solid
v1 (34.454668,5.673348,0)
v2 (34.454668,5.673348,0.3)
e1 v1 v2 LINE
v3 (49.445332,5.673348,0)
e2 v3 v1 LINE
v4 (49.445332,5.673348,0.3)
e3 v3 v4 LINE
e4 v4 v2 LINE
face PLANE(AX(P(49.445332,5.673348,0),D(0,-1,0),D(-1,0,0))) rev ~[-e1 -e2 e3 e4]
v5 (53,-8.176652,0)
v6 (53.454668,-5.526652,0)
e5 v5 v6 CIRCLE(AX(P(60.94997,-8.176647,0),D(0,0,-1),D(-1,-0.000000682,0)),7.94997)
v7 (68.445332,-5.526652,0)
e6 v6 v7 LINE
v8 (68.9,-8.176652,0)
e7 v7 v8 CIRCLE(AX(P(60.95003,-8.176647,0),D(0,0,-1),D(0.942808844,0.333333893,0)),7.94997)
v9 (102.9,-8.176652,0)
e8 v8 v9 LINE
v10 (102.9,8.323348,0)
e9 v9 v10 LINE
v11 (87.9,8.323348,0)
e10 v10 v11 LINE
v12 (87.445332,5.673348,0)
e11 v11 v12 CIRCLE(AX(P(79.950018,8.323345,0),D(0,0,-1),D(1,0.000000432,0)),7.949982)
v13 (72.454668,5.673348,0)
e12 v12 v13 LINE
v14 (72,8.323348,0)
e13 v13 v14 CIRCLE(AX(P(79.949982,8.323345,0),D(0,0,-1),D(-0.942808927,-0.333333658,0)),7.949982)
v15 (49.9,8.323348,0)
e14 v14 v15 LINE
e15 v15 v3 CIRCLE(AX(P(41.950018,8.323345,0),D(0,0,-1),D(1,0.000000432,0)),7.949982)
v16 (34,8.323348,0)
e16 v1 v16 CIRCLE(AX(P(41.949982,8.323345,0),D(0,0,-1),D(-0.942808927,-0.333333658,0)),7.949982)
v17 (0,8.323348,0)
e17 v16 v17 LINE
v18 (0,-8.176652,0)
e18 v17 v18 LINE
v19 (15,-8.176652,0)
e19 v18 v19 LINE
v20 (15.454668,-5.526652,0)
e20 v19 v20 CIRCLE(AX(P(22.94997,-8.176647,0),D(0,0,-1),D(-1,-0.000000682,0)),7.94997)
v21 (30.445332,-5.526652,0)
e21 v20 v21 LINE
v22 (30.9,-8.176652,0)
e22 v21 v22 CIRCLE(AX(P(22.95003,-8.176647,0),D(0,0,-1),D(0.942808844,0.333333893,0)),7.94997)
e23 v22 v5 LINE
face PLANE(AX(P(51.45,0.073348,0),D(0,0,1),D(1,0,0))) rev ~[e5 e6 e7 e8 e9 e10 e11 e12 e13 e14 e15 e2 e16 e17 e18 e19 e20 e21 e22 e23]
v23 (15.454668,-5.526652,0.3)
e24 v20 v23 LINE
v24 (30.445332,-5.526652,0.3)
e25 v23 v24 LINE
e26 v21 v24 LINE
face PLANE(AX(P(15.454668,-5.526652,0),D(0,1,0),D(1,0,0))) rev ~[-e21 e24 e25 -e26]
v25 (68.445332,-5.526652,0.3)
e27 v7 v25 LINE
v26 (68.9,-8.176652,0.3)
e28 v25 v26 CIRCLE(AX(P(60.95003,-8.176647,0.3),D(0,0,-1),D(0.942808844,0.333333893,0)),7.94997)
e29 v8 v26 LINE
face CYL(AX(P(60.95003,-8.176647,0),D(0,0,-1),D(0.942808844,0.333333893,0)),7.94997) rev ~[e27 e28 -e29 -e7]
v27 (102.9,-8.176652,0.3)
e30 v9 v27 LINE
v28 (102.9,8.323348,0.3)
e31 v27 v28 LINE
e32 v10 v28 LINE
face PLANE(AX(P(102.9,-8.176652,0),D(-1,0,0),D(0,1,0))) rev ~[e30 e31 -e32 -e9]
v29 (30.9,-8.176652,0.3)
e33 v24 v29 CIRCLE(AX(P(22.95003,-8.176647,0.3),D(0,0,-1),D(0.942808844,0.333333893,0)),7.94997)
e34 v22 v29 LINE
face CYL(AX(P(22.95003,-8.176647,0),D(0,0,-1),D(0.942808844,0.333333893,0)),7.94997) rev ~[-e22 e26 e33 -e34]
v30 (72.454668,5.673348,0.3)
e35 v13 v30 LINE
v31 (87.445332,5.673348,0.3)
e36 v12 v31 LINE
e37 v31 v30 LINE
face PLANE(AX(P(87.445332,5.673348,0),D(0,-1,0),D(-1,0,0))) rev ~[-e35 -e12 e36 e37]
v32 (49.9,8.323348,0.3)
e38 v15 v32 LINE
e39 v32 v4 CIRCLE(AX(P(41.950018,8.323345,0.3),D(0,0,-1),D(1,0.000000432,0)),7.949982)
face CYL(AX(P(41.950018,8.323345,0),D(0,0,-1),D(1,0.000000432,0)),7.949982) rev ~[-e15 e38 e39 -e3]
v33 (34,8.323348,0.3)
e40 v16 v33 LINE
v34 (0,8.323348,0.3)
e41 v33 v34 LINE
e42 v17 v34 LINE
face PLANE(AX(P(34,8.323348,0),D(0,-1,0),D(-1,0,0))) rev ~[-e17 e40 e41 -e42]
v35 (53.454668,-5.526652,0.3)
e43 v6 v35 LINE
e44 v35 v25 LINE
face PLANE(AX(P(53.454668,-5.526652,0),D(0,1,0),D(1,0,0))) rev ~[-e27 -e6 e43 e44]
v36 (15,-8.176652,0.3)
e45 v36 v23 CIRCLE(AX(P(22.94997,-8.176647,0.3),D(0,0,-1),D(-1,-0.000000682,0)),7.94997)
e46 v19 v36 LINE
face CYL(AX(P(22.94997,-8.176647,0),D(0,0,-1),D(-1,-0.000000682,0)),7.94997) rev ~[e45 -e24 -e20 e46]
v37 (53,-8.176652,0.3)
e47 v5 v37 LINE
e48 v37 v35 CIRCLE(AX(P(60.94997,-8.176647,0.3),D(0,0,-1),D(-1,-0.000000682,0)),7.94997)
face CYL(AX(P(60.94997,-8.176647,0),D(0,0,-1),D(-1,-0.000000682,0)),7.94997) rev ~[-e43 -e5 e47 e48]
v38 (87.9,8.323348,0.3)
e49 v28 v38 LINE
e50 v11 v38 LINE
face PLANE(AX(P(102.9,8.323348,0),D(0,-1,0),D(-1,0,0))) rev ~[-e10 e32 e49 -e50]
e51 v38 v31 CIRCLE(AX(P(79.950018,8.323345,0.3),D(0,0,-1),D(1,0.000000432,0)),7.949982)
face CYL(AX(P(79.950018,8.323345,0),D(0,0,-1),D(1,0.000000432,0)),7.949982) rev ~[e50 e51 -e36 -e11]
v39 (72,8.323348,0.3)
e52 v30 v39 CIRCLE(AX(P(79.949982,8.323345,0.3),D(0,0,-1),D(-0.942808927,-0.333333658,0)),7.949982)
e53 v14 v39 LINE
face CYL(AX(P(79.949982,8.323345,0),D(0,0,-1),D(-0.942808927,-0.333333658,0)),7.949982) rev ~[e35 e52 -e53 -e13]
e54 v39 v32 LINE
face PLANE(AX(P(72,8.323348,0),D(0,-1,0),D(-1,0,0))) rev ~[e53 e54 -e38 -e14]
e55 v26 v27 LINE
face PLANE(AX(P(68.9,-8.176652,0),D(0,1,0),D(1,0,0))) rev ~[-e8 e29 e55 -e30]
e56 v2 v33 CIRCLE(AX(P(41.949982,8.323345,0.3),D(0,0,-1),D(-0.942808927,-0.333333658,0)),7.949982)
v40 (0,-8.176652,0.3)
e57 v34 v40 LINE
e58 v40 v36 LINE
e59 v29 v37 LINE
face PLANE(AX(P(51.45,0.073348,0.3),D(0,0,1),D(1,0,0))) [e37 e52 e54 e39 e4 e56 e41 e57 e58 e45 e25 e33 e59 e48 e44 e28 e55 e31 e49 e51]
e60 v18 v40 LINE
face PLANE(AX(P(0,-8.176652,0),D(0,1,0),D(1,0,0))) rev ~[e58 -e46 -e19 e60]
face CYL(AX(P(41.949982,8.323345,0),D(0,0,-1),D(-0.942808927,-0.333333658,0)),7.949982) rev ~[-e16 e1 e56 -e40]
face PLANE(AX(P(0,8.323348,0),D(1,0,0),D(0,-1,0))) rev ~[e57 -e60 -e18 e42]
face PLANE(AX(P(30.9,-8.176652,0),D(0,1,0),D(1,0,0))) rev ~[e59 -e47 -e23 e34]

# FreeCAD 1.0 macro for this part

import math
import FreeCAD as App
import Part
import Sketcher
from FreeCAD import Vector
Q = App.Units.Quantity

doc = App.newDocument("Part")
body = doc.addObject("PartDesign::Body", "Body")

# Sketch on XY plane
sketch1 = doc.addObject("Sketcher::SketchObject", "Sketch")
body.addObject(sketch1)
sketch1.AttachmentSupport = (doc.XY_Plane, [""])
sketch1.MapMode = "FlatFace"
sketch1.addGeometry(Part.ArcOfCircle(Part.Circle(Vector(61, -8.2, 0), Vector(0, 0, 1), 7.9), math.radians(0), math.radians(19.47)), False)
sketch1.addGeometry(Part.LineSegment(Vector(68.9, -8.2, 0), Vector(102.9, -8.2, 0)), False)
sketch1.addGeometry(Part.LineSegment(Vector(102.9, -8.2, 0), Vector(102.9, 8.3, 0)), False)
sketch1.addGeometry(Part.LineSegment(Vector(102.9, 8.3, 0), Vector(87.9, 8.3, 0)), False)
sketch1.addGeometry(Part.ArcOfCircle(Part.Circle(Vector(80, 8.3, 0), Vector(0, 0, 1), 7.9), math.radians(-19.47), math.radians(0)), False)
sketch1.addGeometry(Part.LineSegment(Vector(87.4, 5.7, 0), Vector(72.5, 5.7, 0)), False)
sketch1.addGeometry(Part.ArcOfCircle(Part.Circle(Vector(79.9, 8.3, 0), Vector(0, 0, 1), 7.9), math.radians(180), math.radians(199.47)), False)
sketch1.addGeometry(Part.LineSegment(Vector(72, 8.3, 0), Vector(49.9, 8.3, 0)), False)
sketch1.addGeometry(Part.ArcOfCircle(Part.Circle(Vector(42, 8.3, 0), Vector(0, 0, 1), 7.9), math.radians(-19.47), math.radians(0)), False)
sketch1.addGeometry(Part.LineSegment(Vector(49.4, 5.7, 0), Vector(34.5, 5.7, 0)), False)
sketch1.addGeometry(Part.ArcOfCircle(Part.Circle(Vector(41.9, 8.3, 0), Vector(0, 0, 1), 7.9), math.radians(180), math.radians(199.47)), False)
sketch1.addGeometry(Part.LineSegment(Vector(34, 8.3, 0), Vector(0, 8.3, 0)), False)
sketch1.addGeometry(Part.LineSegment(Vector(0, 8.3, 0), Vector(0, -8.2, 0)), False)
sketch1.addGeometry(Part.LineSegment(Vector(0, -8.2, 0), Vector(15, -8.2, 0)), False)
sketch1.addGeometry(Part.ArcOfCircle(Part.Circle(Vector(22.9, -8.2, 0), Vector(0, 0, 1), 7.9), math.radians(160.53), math.radians(180)), False)
sketch1.addGeometry(Part.LineSegment(Vector(15.5, -5.5, 0), Vector(30.4, -5.5, 0)), False)
sketch1.addGeometry(Part.ArcOfCircle(Part.Circle(Vector(23, -8.2, 0), Vector(0, 0, 1), 7.9), math.radians(0), math.radians(19.47)), False)
sketch1.addGeometry(Part.LineSegment(Vector(30.9, -8.2, 0), Vector(53, -8.2, 0)), False)
sketch1.addGeometry(Part.ArcOfCircle(Part.Circle(Vector(60.9, -8.2, 0), Vector(0, 0, 1), 7.9), math.radians(160.53), math.radians(180)), False)
sketch1.addGeometry(Part.LineSegment(Vector(53.5, -5.5, 0), Vector(68.4, -5.5, 0)), False)
sketch1.addConstraint(Sketcher.Constraint("Coincident", 0, 1, 1, 1))
sketch1.addConstraint(Sketcher.Constraint("Coincident", 1, 2, 2, 1))
sketch1.addConstraint(Sketcher.Constraint("Coincident", 2, 2, 3, 1))
sketch1.addConstraint(Sketcher.Constraint("Coincident", 3, 2, 4, 2))
sketch1.addConstraint(Sketcher.Constraint("Coincident", 4, 1, 5, 1))
sketch1.addConstraint(Sketcher.Constraint("Coincident", 5, 2, 6, 2))
sketch1.addConstraint(Sketcher.Constraint("Coincident", 6, 1, 7, 1))
sketch1.addConstraint(Sketcher.Constraint("Coincident", 7, 2, 8, 2))
sketch1.addConstraint(Sketcher.Constraint("Coincident", 8, 1, 9, 1))
sketch1.addConstraint(Sketcher.Constraint("Coincident", 9, 2, 10, 2))
sketch1.addConstraint(Sketcher.Constraint("Coincident", 10, 1, 11, 1))
sketch1.addConstraint(Sketcher.Constraint("Coincident", 11, 2, 12, 1))
sketch1.addConstraint(Sketcher.Constraint("Coincident", 12, 2, 13, 1))
sketch1.addConstraint(Sketcher.Constraint("Coincident", 13, 2, 14, 2))
sketch1.addConstraint(Sketcher.Constraint("Coincident", 14, 1, 15, 1))
sketch1.addConstraint(Sketcher.Constraint("Coincident", 15, 2, 16, 2))
sketch1.addConstraint(Sketcher.Constraint("Coincident", 16, 1, 17, 1))
sketch1.addConstraint(Sketcher.Constraint("Coincident", 17, 2, 18, 2))
sketch1.addConstraint(Sketcher.Constraint("Coincident", 18, 1, 19, 1))
sketch1.addConstraint(Sketcher.Constraint("Coincident", 19, 2, 0, 2))
sketch1.addConstraint(Sketcher.Constraint("Horizontal", 1))
sketch1.addConstraint(Sketcher.Constraint("Vertical", 2))
sketch1.addConstraint(Sketcher.Constraint("Horizontal", 3))
sketch1.addConstraint(Sketcher.Constraint("Horizontal", 5))
sketch1.addConstraint(Sketcher.Constraint("Horizontal", 7))
sketch1.addConstraint(Sketcher.Constraint("Horizontal", 9))
sketch1.addConstraint(Sketcher.Constraint("Horizontal", 11))
sketch1.addConstraint(Sketcher.Constraint("Vertical", 12))
sketch1.addConstraint(Sketcher.Constraint("Horizontal", 13))
sketch1.addConstraint(Sketcher.Constraint("Horizontal", 15))
sketch1.addConstraint(Sketcher.Constraint("Horizontal", 17))
sketch1.addConstraint(Sketcher.Constraint("Horizontal", 19))
sketch1.addConstraint(Sketcher.Constraint("Equal", 4, 6))
sketch1.addConstraint(Sketcher.Constraint("Equal", 6, 8))
sketch1.addConstraint(Sketcher.Constraint("Equal", 8, 10))
sketch1.addConstraint(Sketcher.Constraint("Equal", 0, 14))
sketch1.addConstraint(Sketcher.Constraint("Equal", 14, 16))
sketch1.addConstraint(Sketcher.Constraint("Equal", 16, 18))
sketch1.addConstraint(Sketcher.Constraint("PointOnObject", 11, 2, -2))
sketch1.addConstraint(Sketcher.Constraint("Horizontal", 4, 3, 6, 3))
sketch1.addConstraint(Sketcher.Constraint("Horizontal", 6, 3, 8, 3))
sketch1.addConstraint(Sketcher.Constraint("Horizontal", 8, 3, 10, 3))
sketch1.addConstraint(Sketcher.Constraint("Horizontal", 0, 3, 14, 3))
sketch1.addConstraint(Sketcher.Constraint("Horizontal", 14, 3, 16, 3))
sketch1.addConstraint(Sketcher.Constraint("Horizontal", 16, 3, 18, 3))
sketch1.addConstraint(Sketcher.Constraint("Horizontal", 3, 2, 6, 1))
sketch1.addConstraint(Sketcher.Constraint("Horizontal", 5, 2, 8, 1))
sketch1.addConstraint(Sketcher.Constraint("Horizontal", 7, 2, 10, 1))
sketch1.addConstraint(Sketcher.Constraint("Horizontal", 1, 2, 12, 2))
sketch1.addConstraint(Sketcher.Constraint("Horizontal", 13, 2, 16, 1))
sketch1.addConstraint(Sketcher.Constraint("Horizontal", 15, 2, 18, 1))
sketch1.addConstraint(Sketcher.Constraint("Equal", 5, 9))
sketch1.addConstraint(Sketcher.Constraint("Equal", 1, 11))
sketch1.addConstraint(Sketcher.Constraint("Equal", 3, 13))
sketch1.addConstraint(Sketcher.Constraint("Equal", 9, 15))
sketch1.addConstraint(Sketcher.Constraint("Equal", 7, 17))
sketch1.addConstraint(Sketcher.Constraint("Equal", 15, 19))
sketch1.addConstraint(Sketcher.Constraint("DistanceX", 1, 1, 1, 2, Q("34 mm")))
sketch1.addConstraint(Sketcher.Constraint("DistanceX", 3, 2, 3, 1, Q("15 mm")))
sketch1.addConstraint(Sketcher.Constraint("DistanceX", 7, 2, 7, 1, Q("22.1 mm")))
sketch1.addConstraint(Sketcher.Constraint("DistanceY", 2, 1, 2, 2, Q("16.5 mm")))
sketch1.addConstraint(Sketcher.Constraint("DistanceX", -1, 1, 6, 1, Q("72 mm")))
sketch1.addConstraint(Sketcher.Constraint("DistanceY", 15, 2, 9, 2, Q("11.2 mm")))
sketch1.addConstraint(Sketcher.Constraint("Radius", 0, Q("7.94997 mm")))
sketch1.addConstraint(Sketcher.Constraint("Radius", 4, Q("7.949982 mm")))
sketch1.addConstraint(Sketcher.Constraint("DistanceY", 4, 1, 3, 2, Q("2.65 mm")))
sketch1.addConstraint(Sketcher.Constraint("DistanceX", 5, 2, 5, 1, Q("14.990664 mm")))
sketch1.addConstraint(Sketcher.Constraint("DistanceY", -1, 1, 4, 1, Q("5.673348 mm")))
pad1 = doc.addObject("PartDesign::Pad", "Pad")
body.addObject(pad1)
pad1.Profile = sketch1
pad1.Length = 0.3

doc.recompute()
